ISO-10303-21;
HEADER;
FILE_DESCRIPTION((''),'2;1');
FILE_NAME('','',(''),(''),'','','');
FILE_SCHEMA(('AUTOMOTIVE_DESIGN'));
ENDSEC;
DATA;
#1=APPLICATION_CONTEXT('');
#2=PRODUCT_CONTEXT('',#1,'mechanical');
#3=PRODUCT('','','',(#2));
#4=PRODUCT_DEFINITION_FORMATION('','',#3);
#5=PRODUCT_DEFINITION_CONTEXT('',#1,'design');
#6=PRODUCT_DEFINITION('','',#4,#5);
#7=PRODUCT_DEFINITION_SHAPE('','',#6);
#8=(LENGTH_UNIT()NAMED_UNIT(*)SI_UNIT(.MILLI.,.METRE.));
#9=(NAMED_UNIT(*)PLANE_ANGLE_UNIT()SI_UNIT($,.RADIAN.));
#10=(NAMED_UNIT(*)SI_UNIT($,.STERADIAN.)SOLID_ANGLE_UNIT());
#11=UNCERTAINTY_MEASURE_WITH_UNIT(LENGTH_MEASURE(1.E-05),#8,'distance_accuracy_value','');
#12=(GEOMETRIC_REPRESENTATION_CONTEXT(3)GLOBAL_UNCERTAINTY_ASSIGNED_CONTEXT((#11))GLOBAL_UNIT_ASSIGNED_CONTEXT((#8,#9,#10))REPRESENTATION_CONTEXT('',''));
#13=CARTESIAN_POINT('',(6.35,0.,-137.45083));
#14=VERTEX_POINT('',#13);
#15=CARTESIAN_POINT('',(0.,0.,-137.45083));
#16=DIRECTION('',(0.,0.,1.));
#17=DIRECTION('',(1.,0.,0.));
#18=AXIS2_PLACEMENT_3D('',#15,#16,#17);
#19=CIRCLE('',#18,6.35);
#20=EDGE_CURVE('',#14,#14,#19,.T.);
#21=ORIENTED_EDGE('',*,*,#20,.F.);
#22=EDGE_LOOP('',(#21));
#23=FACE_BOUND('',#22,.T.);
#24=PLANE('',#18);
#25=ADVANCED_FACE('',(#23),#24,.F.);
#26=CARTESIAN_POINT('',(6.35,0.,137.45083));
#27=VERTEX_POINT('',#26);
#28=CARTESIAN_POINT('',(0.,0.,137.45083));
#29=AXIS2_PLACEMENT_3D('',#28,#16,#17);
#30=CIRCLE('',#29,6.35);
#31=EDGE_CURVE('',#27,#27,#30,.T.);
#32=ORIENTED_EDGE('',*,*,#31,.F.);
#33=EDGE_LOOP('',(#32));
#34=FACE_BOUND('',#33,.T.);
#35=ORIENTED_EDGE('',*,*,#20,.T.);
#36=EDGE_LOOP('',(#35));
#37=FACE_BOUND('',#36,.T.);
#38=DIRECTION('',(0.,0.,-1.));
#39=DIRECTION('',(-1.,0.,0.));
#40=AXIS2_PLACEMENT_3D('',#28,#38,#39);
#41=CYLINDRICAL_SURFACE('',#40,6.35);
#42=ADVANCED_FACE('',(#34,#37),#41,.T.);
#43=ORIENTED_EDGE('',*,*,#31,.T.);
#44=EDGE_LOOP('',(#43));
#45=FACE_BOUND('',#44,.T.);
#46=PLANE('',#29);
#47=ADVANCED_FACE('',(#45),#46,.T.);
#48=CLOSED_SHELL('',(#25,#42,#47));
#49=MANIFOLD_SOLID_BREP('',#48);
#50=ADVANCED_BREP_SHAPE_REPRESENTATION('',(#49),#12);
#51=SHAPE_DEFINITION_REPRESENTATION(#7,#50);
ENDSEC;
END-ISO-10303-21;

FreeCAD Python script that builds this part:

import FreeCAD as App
import Part
import Sketcher
Q = App.Units.Quantity

doc = App.newDocument("Part")
body = doc.addObject("PartDesign::Body", "Body")

# Sketch on XY plane
sketch1 = doc.addObject("Sketcher::SketchObject", "Sketch")
body.addObject(sketch1)
sketch1.AttachmentSupport = (doc.XY_Plane, [""])
sketch1.MapMode = "FlatFace"
sketch1.addGeometry(Part.Circle(App.Vector(0, 0, 0), App.Vector(0, 0, 1), 6), False)
sketch1.addConstraint([
    Sketcher.Constraint("Coincident", 0, 3, -1, 1),
    Sketcher.Constraint("Diameter", 0, Q("0.5 in")),
])
pad1 = doc.addObject("PartDesign::Pad", "Pad")
body.addObject(pad1)
pad1.Profile = sketch1
pad1.Length = Q("10.8229 in")
pad1.Midplane = True

doc.recompute()
